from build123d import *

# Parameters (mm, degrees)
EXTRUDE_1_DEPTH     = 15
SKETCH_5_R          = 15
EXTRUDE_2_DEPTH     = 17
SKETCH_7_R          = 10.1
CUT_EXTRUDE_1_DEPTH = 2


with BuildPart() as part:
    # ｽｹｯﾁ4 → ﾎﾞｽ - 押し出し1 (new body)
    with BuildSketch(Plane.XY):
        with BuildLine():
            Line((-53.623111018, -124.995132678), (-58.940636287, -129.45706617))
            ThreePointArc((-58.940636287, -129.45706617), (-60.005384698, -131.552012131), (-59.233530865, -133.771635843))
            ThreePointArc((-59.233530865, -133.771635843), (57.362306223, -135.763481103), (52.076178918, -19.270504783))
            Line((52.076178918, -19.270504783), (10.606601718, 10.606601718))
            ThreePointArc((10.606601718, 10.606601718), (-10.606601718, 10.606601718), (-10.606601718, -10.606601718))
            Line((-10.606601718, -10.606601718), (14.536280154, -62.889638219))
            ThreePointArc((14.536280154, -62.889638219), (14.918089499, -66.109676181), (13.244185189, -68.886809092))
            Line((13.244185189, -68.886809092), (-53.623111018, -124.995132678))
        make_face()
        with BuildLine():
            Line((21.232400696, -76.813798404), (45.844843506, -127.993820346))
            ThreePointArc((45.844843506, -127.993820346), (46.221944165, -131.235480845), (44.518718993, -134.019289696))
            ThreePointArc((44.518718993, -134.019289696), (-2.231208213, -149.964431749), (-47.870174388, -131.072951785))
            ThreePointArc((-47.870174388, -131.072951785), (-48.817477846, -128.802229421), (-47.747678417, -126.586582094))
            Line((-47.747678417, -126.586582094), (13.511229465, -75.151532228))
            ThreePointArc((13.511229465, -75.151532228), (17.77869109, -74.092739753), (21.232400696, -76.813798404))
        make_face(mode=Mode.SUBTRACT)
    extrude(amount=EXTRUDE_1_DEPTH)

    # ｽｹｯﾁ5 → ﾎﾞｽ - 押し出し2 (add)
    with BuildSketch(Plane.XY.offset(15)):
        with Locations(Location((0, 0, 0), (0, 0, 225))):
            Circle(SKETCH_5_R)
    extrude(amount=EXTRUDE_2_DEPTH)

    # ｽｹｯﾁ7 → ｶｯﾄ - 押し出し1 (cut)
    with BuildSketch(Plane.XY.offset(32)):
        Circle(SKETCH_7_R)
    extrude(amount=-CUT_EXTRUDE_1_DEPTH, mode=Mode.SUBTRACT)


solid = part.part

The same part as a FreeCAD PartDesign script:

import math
import FreeCAD as App
import Part
import Sketcher

V = App.Vector
Q = App.Units.Quantity

doc = App.newDocument("Part")
body = doc.addObject("PartDesign::Body", "Body")

sketch1 = body.newObject("Sketcher::SketchObject", "Sketch")
sketch1.AttachmentSupport = (doc.getObject("XY_Plane"), [""])
sketch1.MapMode = "FlatFace"
sketch1.addGeometry([
    Part.LineSegment(V(-53.6, -125, 0), V(-58.9, -129.5, 0)),
    Part.ArcOfCircle(Part.Circle(V(-57, -131.8, 0), V(0, 0, 1), 3), math.radians(130), math.radians(222)),
    Part.ArcOfCircle(Part.Circle(V(0, -80, 0), V(0, 0, 1), 80), math.radians(-138), math.radians(49)),
    Part.LineSegment(V(52.1, -19.3, 0), V(10.6, 10.6, 0)),
    Part.ArcOfCircle(Part.Circle(V(0, 0, 0), V(0, 0, 1), 15), math.radians(45), math.radians(225)),
    Part.LineSegment(V(-10.6, -10.6, 0), V(14.5, -62.9, 0)),
    Part.ArcOfCircle(Part.Circle(V(10, -65.1, 0), V(0, 0, 1), 5), math.radians(-50), math.radians(26)),
    Part.LineSegment(V(13.2, -68.9, 0), V(-53.6, -125, 0)),
    Part.ArcOfCircle(Part.Circle(V(16.7, -79, 0), V(0, 0, 1), 5), math.radians(26), math.radians(130)),
    Part.LineSegment(V(21.2, -76.8, 0), V(45.8, -128, 0)),
    Part.ArcOfCircle(Part.Circle(V(41.3, -130.2, 0), V(0, 0, 1), 5), math.radians(-51), math.radians(26)),
    Part.ArcOfCircle(Part.Circle(V(0, -80, 0), V(0, 0, 1), 70), math.radians(-133), math.radians(-51)),
    Part.ArcOfCircle(Part.Circle(V(-45.8, -128.9, 0), V(0, 0, 1), 3), math.radians(130), math.radians(227)),
    Part.LineSegment(V(-47.7, -126.6, 0), V(13.5, -75.2, 0)),
], False)
sketch1.addConstraint([
    Sketcher.Constraint("Tangent", 0, 2, 1, 1),
    Sketcher.Constraint("Tangent", 1, 2, 2, 1),
    Sketcher.Constraint("Coincident", 2, 2, 3, 1),
    Sketcher.Constraint("Coincident", 3, 2, 4, 1),
    Sketcher.Constraint("Coincident", 4, 2, 5, 1),
    Sketcher.Constraint("Tangent", 5, 2, 6, 2),
    Sketcher.Constraint("Tangent", 6, 1, 7, 1),
    Sketcher.Constraint("Coincident", 7, 2, 0, 1),
    Sketcher.Constraint("Tangent", 8, 1, 9, 1),
    Sketcher.Constraint("Tangent", 9, 2, 10, 2),
    Sketcher.Constraint("Tangent", 10, 1, 11, 2),
    Sketcher.Constraint("Tangent", 11, 1, 12, 2),
    Sketcher.Constraint("Tangent", 12, 1, 13, 1),
    Sketcher.Constraint("Tangent", 13, 2, 8, 2),
    Sketcher.Constraint("Coincident", 4, 3, -1, 1),
    Sketcher.Constraint("Coincident", 11, 3, 2, 3),
    Sketcher.Constraint("Equal", 6, 8),
    Sketcher.Constraint("Equal", 8, 10),
    Sketcher.Constraint("Equal", 1, 12),
    Sketcher.Constraint("PointOnObject", 2, 3, -2),
    Sketcher.Constraint("Parallel", 0, 7),
    Sketcher.Constraint("Parallel", 5, 9),
    Sketcher.Constraint("Radius", 1, 3.0),
    Sketcher.Constraint("Radius", 2, 80.0),
    Sketcher.Constraint("Radius", 4, 15.0),
    Sketcher.Constraint("Radius", 6, 5.0),
    Sketcher.Constraint("Radius", 11, 70.0),
    Sketcher.Constraint("Angle", 0, Q("-140 deg")),
    Sketcher.Constraint("DistanceY", 2, 3, -1, 1, 80.0),
    Sketcher.Constraint("DistanceY", 1, 3, -1, 1, 131.755199),
    Sketcher.Constraint("DistanceX", -1, 1, 3, 2, 10.606602),
    Sketcher.Constraint("DistanceX", 4, 2, -1, 1, 10.606602),
    Sketcher.Constraint("DistanceX", -1, 1, 8, 1, 21.232401),
    Sketcher.Constraint("DistanceY", 8, 1, -1, 1, 76.813798),
    Sketcher.Constraint("DistanceX", 5, 2, 2, 2, 37.539899),
    Sketcher.Constraint("DistanceX", 1, 3, 11, 1, 9.142099),
    Sketcher.Constraint("DistanceX", -1, 1, 10, 3, 41.33881),
    Sketcher.Constraint("DistanceX", 7, 2, -1, 1, 53.623111),
])
pad1 = body.newObject("PartDesign::Pad", "Pad")
pad1.Profile = sketch1
pad1.Length = 15

sketch2 = body.newObject("Sketcher::SketchObject", "Sketch001")
sketch2.AttachmentSupport = (doc.getObject("XY_Plane"), [""])
sketch2.MapMode = "FlatFace"
sketch2.AttachmentOffset = App.Placement(V(0, 0, 15), App.Rotation())
sketch2.addGeometry(Part.Circle(V(0, 0, 0), V(0, 0, 1), 15), False)
sketch2.addConstraint([
    Sketcher.Constraint("Coincident", 0, 3, -1, 1),
    Sketcher.Constraint("Diameter", 0, 30.0),
])
pad2 = body.newObject("PartDesign::Pad", "Pad001")
pad2.Profile = sketch2
pad2.Length = 17

sketch3 = body.newObject("Sketcher::SketchObject", "Sketch002")
sketch3.AttachmentSupport = (doc.getObject("XY_Plane"), [""])
sketch3.MapMode = "FlatFace"
sketch3.AttachmentOffset = App.Placement(V(0, 0, 32), App.Rotation())
sketch3.addGeometry(Part.Circle(V(0, 0, 0), V(0, 0, 1), 10), False)
sketch3.addConstraint([
    Sketcher.Constraint("Coincident", 0, 3, -1, 1),
    Sketcher.Constraint("Diameter", 0, 20.2),
])
pocket1 = body.newObject("PartDesign::Pocket", "Pocket")
pocket1.Profile = sketch3
pocket1.Length = 2

doc.recompute()
